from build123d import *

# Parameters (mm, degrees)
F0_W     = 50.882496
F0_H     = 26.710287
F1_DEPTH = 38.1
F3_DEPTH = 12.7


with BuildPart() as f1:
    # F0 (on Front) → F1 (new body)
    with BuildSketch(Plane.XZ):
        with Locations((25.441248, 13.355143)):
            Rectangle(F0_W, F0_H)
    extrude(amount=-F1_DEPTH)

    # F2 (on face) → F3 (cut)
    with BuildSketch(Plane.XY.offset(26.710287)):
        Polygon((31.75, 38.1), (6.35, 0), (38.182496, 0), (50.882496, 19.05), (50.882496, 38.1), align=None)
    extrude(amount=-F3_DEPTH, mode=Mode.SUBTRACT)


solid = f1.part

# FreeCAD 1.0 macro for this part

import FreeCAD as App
import Part
import Sketcher
from FreeCAD import Vector
Q = App.Units.Quantity


def add_polygon(sketch, points):
    """Adds a closed chain of lines whose ends are joined by coincident constraints."""
    first, n = sketch.GeometryCount, len(points)
    for a, b in zip(points, points[1:] + points[:1]):
        sketch.addGeometry(Part.LineSegment(App.Vector(*a, 0), App.Vector(*b, 0)), False)
    for i in range(n):
        sketch.addConstraint(Sketcher.Constraint("Coincident", first + i, 2, first + (i + 1) % n, 1))

doc = App.newDocument("Part")
body = doc.addObject("PartDesign::Body", "Body")

# Sketch on XZ plane
sketch1 = body.newObject("Sketcher::SketchObject", "Sketch")
sketch1.AttachmentSupport = (doc.getObject("XZ_Plane"), [""])
sketch1.MapMode = "FlatFace"
add_polygon(sketch1, [(0, 27), (0, 0), (51, 0), (51, 27)])  # lines 0-3
sketch1.addConstraint([
    Sketcher.Constraint("Vertical", 0),
    Sketcher.Constraint("Horizontal", 1),
    Sketcher.Constraint("Vertical", 2),
    Sketcher.Constraint("Horizontal", 3),
    Sketcher.Constraint("Coincident", 0, 2, -1, 1),
    Sketcher.Constraint("DistanceX", 1, 1, 1, 2, Q("50.882496 mm")),
    Sketcher.Constraint("DistanceY", 0, 2, 0, 1, Q("26.710287 mm")),
])
pad1 = body.newObject("PartDesign::Pad", "Pad")
pad1.Profile = sketch1
pad1.Length = Q("1.5 in")
pad1.Reversed = True

# Sketch on XY plane
sketch2 = body.newObject("Sketcher::SketchObject", "Sketch001")
sketch2.AttachmentSupport = (doc.getObject("XY_Plane"), [""])
sketch2.MapMode = "FlatFace"
sketch2.AttachmentOffset = App.Placement(Vector(0, 0, 26.710287), App.Rotation())
add_polygon(sketch2, [(32, 38), (6, 0), (38, 0), (51, 19), (51, 38)])  # lines 0-4
sketch2.addConstraint([
    Sketcher.Constraint("Horizontal", 1),
    Sketcher.Constraint("Vertical", 3),
    Sketcher.Constraint("Horizontal", 4),
    Sketcher.Constraint("PointOnObject", 0, 2, -1),
    Sketcher.Constraint("Parallel", 0, 2),
    Sketcher.Constraint("DistanceX", 0, 2, 4, 2, Q("1 in")),
    Sketcher.Constraint("DistanceY", 3, 1, 3, 2, Q("0.75 in")),
    Sketcher.Constraint("DistanceY", -1, 1, 3, 2, Q("1.5 in")),
    Sketcher.Constraint("DistanceX", -1, 1, 0, 2, Q("0.25 in")),
    Sketcher.Constraint("DistanceX", 1, 1, 1, 2, Q("31.832496 mm")),
])
pocket1 = body.newObject("PartDesign::Pocket", "Pocket")
pocket1.Profile = sketch2
pocket1.Length = Q("0.5 in")

doc.recompute()
